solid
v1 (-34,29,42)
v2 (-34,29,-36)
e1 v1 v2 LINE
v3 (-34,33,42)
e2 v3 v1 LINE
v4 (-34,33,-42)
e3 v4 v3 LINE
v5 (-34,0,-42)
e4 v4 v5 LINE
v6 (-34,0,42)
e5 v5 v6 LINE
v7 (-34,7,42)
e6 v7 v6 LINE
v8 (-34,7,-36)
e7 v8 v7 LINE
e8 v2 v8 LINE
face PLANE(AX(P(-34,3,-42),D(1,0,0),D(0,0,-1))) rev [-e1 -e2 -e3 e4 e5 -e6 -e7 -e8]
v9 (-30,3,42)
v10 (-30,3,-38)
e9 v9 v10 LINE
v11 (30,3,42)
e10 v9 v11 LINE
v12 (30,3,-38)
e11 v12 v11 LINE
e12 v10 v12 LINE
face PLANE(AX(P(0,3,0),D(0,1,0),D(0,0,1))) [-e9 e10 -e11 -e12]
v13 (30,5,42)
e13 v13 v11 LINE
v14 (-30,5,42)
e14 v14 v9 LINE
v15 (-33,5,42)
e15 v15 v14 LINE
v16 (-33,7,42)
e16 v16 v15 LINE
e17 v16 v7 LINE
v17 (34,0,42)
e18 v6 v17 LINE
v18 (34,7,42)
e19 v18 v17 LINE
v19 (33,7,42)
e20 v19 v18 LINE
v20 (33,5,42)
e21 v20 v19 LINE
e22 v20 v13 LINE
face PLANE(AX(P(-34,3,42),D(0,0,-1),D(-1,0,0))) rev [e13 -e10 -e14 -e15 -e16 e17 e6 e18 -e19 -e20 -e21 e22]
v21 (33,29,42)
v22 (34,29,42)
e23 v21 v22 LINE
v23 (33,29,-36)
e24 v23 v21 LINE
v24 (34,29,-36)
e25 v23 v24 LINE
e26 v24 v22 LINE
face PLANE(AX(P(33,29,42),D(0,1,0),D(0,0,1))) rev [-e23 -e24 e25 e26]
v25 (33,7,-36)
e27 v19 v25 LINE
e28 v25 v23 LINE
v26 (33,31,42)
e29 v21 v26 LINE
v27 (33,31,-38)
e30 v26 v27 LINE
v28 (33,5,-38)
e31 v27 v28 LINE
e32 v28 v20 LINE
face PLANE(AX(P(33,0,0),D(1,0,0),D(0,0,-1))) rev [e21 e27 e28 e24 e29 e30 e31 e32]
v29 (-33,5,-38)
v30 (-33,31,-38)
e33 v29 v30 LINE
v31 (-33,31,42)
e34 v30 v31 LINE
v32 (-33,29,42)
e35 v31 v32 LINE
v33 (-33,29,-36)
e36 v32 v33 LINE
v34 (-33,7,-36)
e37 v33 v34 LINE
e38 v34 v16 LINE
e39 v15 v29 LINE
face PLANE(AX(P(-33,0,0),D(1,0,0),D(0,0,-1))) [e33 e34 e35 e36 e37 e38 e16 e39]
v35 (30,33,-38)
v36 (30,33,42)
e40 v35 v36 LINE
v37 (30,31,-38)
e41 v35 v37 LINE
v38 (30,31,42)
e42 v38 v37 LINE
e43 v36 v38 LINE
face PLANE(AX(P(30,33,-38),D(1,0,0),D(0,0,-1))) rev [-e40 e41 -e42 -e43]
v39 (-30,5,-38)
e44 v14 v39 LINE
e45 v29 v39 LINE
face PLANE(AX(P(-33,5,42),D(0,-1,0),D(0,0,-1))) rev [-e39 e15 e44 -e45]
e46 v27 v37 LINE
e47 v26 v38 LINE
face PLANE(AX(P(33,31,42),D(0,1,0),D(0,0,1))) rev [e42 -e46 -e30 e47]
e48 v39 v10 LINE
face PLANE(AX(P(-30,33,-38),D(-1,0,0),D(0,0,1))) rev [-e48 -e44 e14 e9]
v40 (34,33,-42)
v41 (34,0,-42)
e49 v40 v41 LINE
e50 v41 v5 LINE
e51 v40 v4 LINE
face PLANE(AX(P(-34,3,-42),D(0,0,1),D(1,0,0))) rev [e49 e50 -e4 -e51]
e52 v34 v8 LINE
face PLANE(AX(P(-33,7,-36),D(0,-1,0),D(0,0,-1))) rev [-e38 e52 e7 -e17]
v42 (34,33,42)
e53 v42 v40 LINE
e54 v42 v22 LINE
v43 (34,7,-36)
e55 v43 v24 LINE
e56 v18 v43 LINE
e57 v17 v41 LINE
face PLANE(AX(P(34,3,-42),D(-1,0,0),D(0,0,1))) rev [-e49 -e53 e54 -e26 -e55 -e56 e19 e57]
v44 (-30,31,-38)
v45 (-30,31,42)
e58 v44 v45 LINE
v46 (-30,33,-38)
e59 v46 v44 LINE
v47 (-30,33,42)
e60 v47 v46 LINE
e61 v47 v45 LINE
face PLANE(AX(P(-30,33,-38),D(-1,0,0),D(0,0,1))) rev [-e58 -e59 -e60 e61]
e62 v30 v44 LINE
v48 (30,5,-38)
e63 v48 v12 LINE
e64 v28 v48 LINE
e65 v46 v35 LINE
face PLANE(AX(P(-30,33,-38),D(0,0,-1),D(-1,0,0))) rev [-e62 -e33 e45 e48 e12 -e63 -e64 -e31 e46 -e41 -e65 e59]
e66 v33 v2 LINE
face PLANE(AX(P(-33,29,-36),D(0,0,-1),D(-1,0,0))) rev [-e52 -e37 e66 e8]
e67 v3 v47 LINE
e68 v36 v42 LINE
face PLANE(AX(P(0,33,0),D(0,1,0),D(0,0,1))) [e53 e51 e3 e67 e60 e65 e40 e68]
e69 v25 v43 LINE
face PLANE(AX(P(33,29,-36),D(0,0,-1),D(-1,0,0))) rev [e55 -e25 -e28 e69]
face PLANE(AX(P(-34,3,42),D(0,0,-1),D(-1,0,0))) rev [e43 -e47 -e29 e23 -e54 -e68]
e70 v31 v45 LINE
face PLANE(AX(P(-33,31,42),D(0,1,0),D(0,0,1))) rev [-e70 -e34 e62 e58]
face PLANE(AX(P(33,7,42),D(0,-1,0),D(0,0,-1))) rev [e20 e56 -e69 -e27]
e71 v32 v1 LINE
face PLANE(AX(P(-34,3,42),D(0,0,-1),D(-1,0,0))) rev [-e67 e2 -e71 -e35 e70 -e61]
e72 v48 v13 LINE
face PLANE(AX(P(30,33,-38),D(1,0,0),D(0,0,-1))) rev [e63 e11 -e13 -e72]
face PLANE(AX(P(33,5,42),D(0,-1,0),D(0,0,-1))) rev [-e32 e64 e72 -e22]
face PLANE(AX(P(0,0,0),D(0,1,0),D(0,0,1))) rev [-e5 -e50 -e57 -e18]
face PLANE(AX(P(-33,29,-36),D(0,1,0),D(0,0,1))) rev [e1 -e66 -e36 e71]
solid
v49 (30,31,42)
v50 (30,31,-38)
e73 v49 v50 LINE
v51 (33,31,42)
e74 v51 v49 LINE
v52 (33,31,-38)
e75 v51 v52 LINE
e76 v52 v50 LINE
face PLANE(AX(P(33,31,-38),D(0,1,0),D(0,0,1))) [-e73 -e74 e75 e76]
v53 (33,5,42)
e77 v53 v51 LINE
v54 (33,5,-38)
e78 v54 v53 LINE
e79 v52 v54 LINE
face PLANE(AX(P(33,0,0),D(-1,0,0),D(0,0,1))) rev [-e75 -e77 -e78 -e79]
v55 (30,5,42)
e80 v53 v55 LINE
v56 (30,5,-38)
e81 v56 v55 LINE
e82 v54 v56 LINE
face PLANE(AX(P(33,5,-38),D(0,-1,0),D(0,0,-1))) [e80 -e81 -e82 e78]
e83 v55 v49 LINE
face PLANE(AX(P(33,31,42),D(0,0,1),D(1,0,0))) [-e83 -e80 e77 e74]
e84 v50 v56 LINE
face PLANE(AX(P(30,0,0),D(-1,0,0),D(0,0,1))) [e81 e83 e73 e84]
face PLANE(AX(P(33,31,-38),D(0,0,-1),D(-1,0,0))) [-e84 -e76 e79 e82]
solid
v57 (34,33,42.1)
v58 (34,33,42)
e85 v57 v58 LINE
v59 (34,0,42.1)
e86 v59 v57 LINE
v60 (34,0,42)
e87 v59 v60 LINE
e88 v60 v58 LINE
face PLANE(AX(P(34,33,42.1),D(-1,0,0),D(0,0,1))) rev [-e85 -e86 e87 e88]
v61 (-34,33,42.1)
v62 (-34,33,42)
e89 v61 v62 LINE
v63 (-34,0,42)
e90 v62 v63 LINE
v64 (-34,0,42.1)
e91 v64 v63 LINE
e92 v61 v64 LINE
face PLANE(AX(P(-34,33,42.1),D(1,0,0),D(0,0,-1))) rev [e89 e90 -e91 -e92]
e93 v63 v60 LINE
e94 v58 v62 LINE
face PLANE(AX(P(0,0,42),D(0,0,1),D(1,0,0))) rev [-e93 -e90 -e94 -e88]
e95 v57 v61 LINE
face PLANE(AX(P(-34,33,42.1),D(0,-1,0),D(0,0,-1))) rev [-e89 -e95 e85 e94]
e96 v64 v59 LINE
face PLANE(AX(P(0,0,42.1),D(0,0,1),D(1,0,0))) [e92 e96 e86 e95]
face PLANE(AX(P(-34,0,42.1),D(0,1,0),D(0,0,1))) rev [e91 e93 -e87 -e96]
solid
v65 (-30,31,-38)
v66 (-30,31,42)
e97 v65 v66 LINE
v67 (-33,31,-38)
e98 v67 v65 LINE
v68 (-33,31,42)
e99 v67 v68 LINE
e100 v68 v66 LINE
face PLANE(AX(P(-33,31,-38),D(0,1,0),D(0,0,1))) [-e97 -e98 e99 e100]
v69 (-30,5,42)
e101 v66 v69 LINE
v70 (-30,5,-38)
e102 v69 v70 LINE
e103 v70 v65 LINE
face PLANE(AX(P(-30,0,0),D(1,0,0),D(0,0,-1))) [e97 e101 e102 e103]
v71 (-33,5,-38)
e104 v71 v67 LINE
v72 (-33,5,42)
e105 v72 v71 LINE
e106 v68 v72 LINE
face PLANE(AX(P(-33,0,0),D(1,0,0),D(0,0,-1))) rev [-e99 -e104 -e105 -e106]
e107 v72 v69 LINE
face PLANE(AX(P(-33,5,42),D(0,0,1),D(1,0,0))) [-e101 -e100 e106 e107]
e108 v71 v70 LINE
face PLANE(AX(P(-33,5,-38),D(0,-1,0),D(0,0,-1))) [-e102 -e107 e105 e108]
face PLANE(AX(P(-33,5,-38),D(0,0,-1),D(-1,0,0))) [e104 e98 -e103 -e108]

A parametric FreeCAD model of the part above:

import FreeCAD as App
import Part
import Sketcher


def add_polygon(sketch, points):
    """Adds a closed chain of lines whose ends are joined by coincident constraints."""
    first, n = sketch.GeometryCount, len(points)
    for a, b in zip(points, points[1:] + points[:1]):
        sketch.addGeometry(Part.LineSegment(App.Vector(*a, 0), App.Vector(*b, 0)), False)
    for i in range(n):
        sketch.addConstraint(Sketcher.Constraint("Coincident", first + i, 2, first + (i + 1) % n, 1))

doc = App.newDocument("Part")
body = doc.addObject("PartDesign::Body", "Body")

# Sketch on XZ plane
sketch1 = body.newObject("Sketcher::SketchObject", "Sketch")
sketch1.AttachmentSupport = (doc.getObject("XZ_Plane"), [""])
sketch1.MapMode = "FlatFace"
add_polygon(sketch1, [(-34, -42), (-34, 42), (34, 42), (34, -42)])  # lines 0-3
sketch1.addConstraint(Sketcher.Constraint("Vertical", 0))
sketch1.addConstraint(Sketcher.Constraint("Horizontal", 1))
sketch1.addConstraint(Sketcher.Constraint("Vertical", 2))
sketch1.addConstraint(Sketcher.Constraint("Horizontal", 3))
sketch1.addConstraint(Sketcher.Constraint("Symmetric", 0, 2, 2, 2, -1, 1))
sketch1.addConstraint(Sketcher.Constraint("DistanceX", 1, 1, 1, 2, 68.0))
sketch1.addConstraint(Sketcher.Constraint("DistanceY", 0, 1, 0, 2, 84.0))
pad1 = body.newObject("PartDesign::Pad", "Pad")
pad1.Profile = sketch1
pad1.Length = 3
pad1.Reversed = True

# Sketch on XZ plane
sketch2 = body.newObject("Sketcher::SketchObject", "Sketch001")
sketch2.AttachmentSupport = (doc.getObject("XZ_Plane"), [""])
sketch2.MapMode = "FlatFace"
sketch2.AttachmentOffset = App.Placement(App.Vector(0, 0, -3), App.Rotation())
add_polygon(sketch2, [(-34, 42), (-30, 42), (-30, -38), (30, -38), (30, 42), (34, 42), (34, -42), (-34, -42)])  # lines 0-7
sketch2.addConstraint(Sketcher.Constraint("Horizontal", 0))
sketch2.addConstraint(Sketcher.Constraint("Vertical", 1))
sketch2.addConstraint(Sketcher.Constraint("Horizontal", 2))
sketch2.addConstraint(Sketcher.Constraint("Vertical", 3))
sketch2.addConstraint(Sketcher.Constraint("Horizontal", 4))
sketch2.addConstraint(Sketcher.Constraint("Vertical", 5))
sketch2.addConstraint(Sketcher.Constraint("Horizontal", 6))
sketch2.addConstraint(Sketcher.Constraint("Vertical", 7))
sketch2.addConstraint(Sketcher.Constraint("Symmetric", 4, 2, 6, 2, -1, 1))
sketch2.addConstraint(Sketcher.Constraint("Symmetric", 0, 2, 3, 2, -2))
sketch2.addConstraint(Sketcher.Constraint("DistanceX", 0, 1, 0, 2, 4.0))
sketch2.addConstraint(Sketcher.Constraint("DistanceX", 2, 1, 2, 2, 60.0))
sketch2.addConstraint(Sketcher.Constraint("DistanceY", 1, 2, 1, 1, 80.0))
sketch2.addConstraint(Sketcher.Constraint("DistanceY", 5, 2, 5, 1, 84.0))
pad2 = body.newObject("PartDesign::Pad", "Pad001")
pad2.Profile = sketch2
pad2.Length = 30
pad2.Reversed = True

# Sketch on YZ plane
sketch3 = body.newObject("Sketcher::SketchObject", "Sketch002")
sketch3.AttachmentSupport = (doc.getObject("YZ_Plane"), [""])
sketch3.MapMode = "FlatFace"
sketch3.AttachmentOffset = App.Placement(App.Vector(0, 0, -34), App.Rotation())
add_polygon(sketch3, [(29, -36), (7, -36), (7, 42), (29, 42)])  # lines 0-3
sketch3.addConstraint(Sketcher.Constraint("Horizontal", 0))
sketch3.addConstraint(Sketcher.Constraint("Vertical", 1))
sketch3.addConstraint(Sketcher.Constraint("Horizontal", 2))
sketch3.addConstraint(Sketcher.Constraint("Vertical", 3))
sketch3.addConstraint(Sketcher.Constraint("DistanceX", 0, 2, 0, 1, 22.0))
sketch3.addConstraint(Sketcher.Constraint("DistanceY", 1, 1, 1, 2, 78.0))
sketch3.addConstraint(Sketcher.Constraint("DistanceX", -1, 1, 0, 2, 7.0))
sketch3.addConstraint(Sketcher.Constraint("DistanceY", 0, 2, -1, 1, 36.0))
pocket1 = body.newObject("PartDesign::Pocket", "Pocket")
pocket1.Profile = sketch3
pocket1.Length = 1
pocket1.Reversed = True

# Sketch on YZ plane
sketch4 = body.newObject("Sketcher::SketchObject", "Sketch003")
sketch4.AttachmentSupport = (doc.getObject("YZ_Plane"), [""])
sketch4.MapMode = "FlatFace"
sketch4.AttachmentOffset = App.Placement(App.Vector(0, 0, -30), App.Rotation())
add_polygon(sketch4, [(31, 42), (5, 42), (5, -38), (31, -38)])  # lines 0-3
sketch4.addConstraint(Sketcher.Constraint("Horizontal", 0))
sketch4.addConstraint(Sketcher.Constraint("Vertical", 1))
sketch4.addConstraint(Sketcher.Constraint("Horizontal", 2))
sketch4.addConstraint(Sketcher.Constraint("Vertical", 3))
sketch4.addConstraint(Sketcher.Constraint("DistanceX", 0, 2, 0, 1, 26.0))
sketch4.addConstraint(Sketcher.Constraint("DistanceY", 1, 2, 1, 1, 80.0))
sketch4.addConstraint(Sketcher.Constraint("DistanceX", -1, 1, 0, 2, 5.0))
sketch4.addConstraint(Sketcher.Constraint("DistanceY", -1, 1, 0, 2, 42.0))
pocket2 = body.newObject("PartDesign::Pocket", "Pocket001")
pocket2.Profile = sketch4
pocket2.Length = 3

# Sketch on YZ plane
sketch5 = body.newObject("Sketcher::SketchObject", "Sketch004")
sketch5.AttachmentSupport = (doc.getObject("YZ_Plane"), [""])
sketch5.MapMode = "FlatFace"
sketch5.AttachmentOffset = App.Placement(App.Vector(0, 0, 30), App.Rotation())
add_polygon(sketch5, [(31, -38), (5, -38), (5, 42), (31, 42)])  # lines 0-3
sketch5.addConstraint(Sketcher.Constraint("Horizontal", 0))
sketch5.addConstraint(Sketcher.Constraint("Vertical", 1))
sketch5.addConstraint(Sketcher.Constraint("Horizontal", 2))
sketch5.addConstraint(Sketcher.Constraint("Vertical", 3))
sketch5.addConstraint(Sketcher.Constraint("DistanceX", 0, 2, 0, 1, 26.0))
sketch5.addConstraint(Sketcher.Constraint("DistanceY", 1, 1, 1, 2, 80.0))
sketch5.addConstraint(Sketcher.Constraint("DistanceX", -1, 1, 0, 2, 5.0))
sketch5.addConstraint(Sketcher.Constraint("DistanceY", 0, 2, -1, 1, 38.0))
pocket3 = body.newObject("PartDesign::Pocket", "Pocket002")
pocket3.Profile = sketch5
pocket3.Length = 3
pocket3.Reversed = True

# Sketch on YZ plane
sketch6 = body.newObject("Sketcher::SketchObject", "Sketch005")
sketch6.AttachmentSupport = (doc.getObject("YZ_Plane"), [""])
sketch6.MapMode = "FlatFace"
sketch6.AttachmentOffset = App.Placement(App.Vector(0, 0, 34), App.Rotation())
add_polygon(sketch6, [(29, 42), (7, 42), (7, -36), (29, -36)])  # lines 0-3
sketch6.addConstraint(Sketcher.Constraint("Horizontal", 0))
sketch6.addConstraint(Sketcher.Constraint("Vertical", 1))
sketch6.addConstraint(Sketcher.Constraint("Horizontal", 2))
sketch6.addConstraint(Sketcher.Constraint("Vertical", 3))
sketch6.addConstraint(Sketcher.Constraint("DistanceX", 0, 2, 0, 1, 22.0))
sketch6.addConstraint(Sketcher.Constraint("DistanceY", 1, 2, 1, 1, 78.0))
sketch6.addConstraint(Sketcher.Constraint("DistanceX", -1, 1, 0, 2, 7.0))
sketch6.addConstraint(Sketcher.Constraint("DistanceY", -1, 1, 0, 2, 42.0))
pocket4 = body.newObject("PartDesign::Pocket", "Pocket003")
pocket4.Profile = sketch6
pocket4.Length = 1
body2 = doc.addObject("PartDesign::Body", "Body001")

# Sketch on YZ plane
sketch7 = body2.newObject("Sketcher::SketchObject", "Sketch006")
sketch7.AttachmentSupport = (doc.getObject("YZ_Plane001"), [""])
sketch7.MapMode = "FlatFace"
sketch7.AttachmentOffset = App.Placement(App.Vector(0, 0, -30), App.Rotation())
add_polygon(sketch7, [(31, 42), (5, 42), (5, -38), (31, -38)])  # lines 0-3
sketch7.addConstraint(Sketcher.Constraint("Horizontal", 0))
sketch7.addConstraint(Sketcher.Constraint("Vertical", 1))
sketch7.addConstraint(Sketcher.Constraint("Horizontal", 2))
sketch7.addConstraint(Sketcher.Constraint("Vertical", 3))
sketch7.addConstraint(Sketcher.Constraint("DistanceX", 0, 2, 0, 1, 26.0))
sketch7.addConstraint(Sketcher.Constraint("DistanceY", 1, 2, 1, 1, 80.0))
sketch7.addConstraint(Sketcher.Constraint("DistanceX", -1, 1, 0, 2, 5.0))
sketch7.addConstraint(Sketcher.Constraint("DistanceY", -1, 1, 0, 2, 42.0))
pad3 = body2.newObject("PartDesign::Pad", "Pad002")
pad3.Profile = sketch7
pad3.Length = 3
pad3.Reversed = True
body3 = doc.addObject("PartDesign::Body", "Body002")

# Sketch on YZ plane
sketch8 = body3.newObject("Sketcher::SketchObject", "Sketch007")
sketch8.AttachmentSupport = (doc.getObject("YZ_Plane002"), [""])
sketch8.MapMode = "FlatFace"
sketch8.AttachmentOffset = App.Placement(App.Vector(0, 0, 30), App.Rotation())
add_polygon(sketch8, [(31, -38), (5, -38), (5, 42), (31, 42)])  # lines 0-3
sketch8.addConstraint(Sketcher.Constraint("Horizontal", 0))
sketch8.addConstraint(Sketcher.Constraint("Vertical", 1))
sketch8.addConstraint(Sketcher.Constraint("Horizontal", 2))
sketch8.addConstraint(Sketcher.Constraint("Vertical", 3))
sketch8.addConstraint(Sketcher.Constraint("DistanceX", 0, 2, 0, 1, 26.0))
sketch8.addConstraint(Sketcher.Constraint("DistanceY", 1, 1, 1, 2, 80.0))
sketch8.addConstraint(Sketcher.Constraint("DistanceX", -1, 1, 0, 2, 5.0))
sketch8.addConstraint(Sketcher.Constraint("DistanceY", 0, 2, -1, 1, 38.0))
pad4 = body3.newObject("PartDesign::Pad", "Pad003")
pad4.Profile = sketch8
pad4.Length = 3
body4 = doc.addObject("PartDesign::Body", "Body003")

# Sketch on XY plane
sketch9 = body4.newObject("Sketcher::SketchObject", "Sketch008")
sketch9.AttachmentSupport = (doc.getObject("XY_Plane003"), [""])
sketch9.MapMode = "FlatFace"
sketch9.AttachmentOffset = App.Placement(App.Vector(0, 0, 42), App.Rotation())
add_polygon(sketch9, [(-34, 33), (-34, 0), (34, 0), (34, 33)])  # lines 0-3
sketch9.addConstraint(Sketcher.Constraint("Vertical", 0))
sketch9.addConstraint(Sketcher.Constraint("Horizontal", 1))
sketch9.addConstraint(Sketcher.Constraint("Vertical", 2))
sketch9.addConstraint(Sketcher.Constraint("Horizontal", 3))
sketch9.addConstraint(Sketcher.Constraint("Symmetric", 0, 2, 1, 2, -1, 1))
sketch9.addConstraint(Sketcher.Constraint("DistanceX", 1, 1, 1, 2, 68.0))
sketch9.addConstraint(Sketcher.Constraint("DistanceY", 0, 2, 0, 1, 33.0))
pad5 = body4.newObject("PartDesign::Pad", "Pad004")
pad5.Profile = sketch9
pad5.Length = 0.1

doc.recompute()
